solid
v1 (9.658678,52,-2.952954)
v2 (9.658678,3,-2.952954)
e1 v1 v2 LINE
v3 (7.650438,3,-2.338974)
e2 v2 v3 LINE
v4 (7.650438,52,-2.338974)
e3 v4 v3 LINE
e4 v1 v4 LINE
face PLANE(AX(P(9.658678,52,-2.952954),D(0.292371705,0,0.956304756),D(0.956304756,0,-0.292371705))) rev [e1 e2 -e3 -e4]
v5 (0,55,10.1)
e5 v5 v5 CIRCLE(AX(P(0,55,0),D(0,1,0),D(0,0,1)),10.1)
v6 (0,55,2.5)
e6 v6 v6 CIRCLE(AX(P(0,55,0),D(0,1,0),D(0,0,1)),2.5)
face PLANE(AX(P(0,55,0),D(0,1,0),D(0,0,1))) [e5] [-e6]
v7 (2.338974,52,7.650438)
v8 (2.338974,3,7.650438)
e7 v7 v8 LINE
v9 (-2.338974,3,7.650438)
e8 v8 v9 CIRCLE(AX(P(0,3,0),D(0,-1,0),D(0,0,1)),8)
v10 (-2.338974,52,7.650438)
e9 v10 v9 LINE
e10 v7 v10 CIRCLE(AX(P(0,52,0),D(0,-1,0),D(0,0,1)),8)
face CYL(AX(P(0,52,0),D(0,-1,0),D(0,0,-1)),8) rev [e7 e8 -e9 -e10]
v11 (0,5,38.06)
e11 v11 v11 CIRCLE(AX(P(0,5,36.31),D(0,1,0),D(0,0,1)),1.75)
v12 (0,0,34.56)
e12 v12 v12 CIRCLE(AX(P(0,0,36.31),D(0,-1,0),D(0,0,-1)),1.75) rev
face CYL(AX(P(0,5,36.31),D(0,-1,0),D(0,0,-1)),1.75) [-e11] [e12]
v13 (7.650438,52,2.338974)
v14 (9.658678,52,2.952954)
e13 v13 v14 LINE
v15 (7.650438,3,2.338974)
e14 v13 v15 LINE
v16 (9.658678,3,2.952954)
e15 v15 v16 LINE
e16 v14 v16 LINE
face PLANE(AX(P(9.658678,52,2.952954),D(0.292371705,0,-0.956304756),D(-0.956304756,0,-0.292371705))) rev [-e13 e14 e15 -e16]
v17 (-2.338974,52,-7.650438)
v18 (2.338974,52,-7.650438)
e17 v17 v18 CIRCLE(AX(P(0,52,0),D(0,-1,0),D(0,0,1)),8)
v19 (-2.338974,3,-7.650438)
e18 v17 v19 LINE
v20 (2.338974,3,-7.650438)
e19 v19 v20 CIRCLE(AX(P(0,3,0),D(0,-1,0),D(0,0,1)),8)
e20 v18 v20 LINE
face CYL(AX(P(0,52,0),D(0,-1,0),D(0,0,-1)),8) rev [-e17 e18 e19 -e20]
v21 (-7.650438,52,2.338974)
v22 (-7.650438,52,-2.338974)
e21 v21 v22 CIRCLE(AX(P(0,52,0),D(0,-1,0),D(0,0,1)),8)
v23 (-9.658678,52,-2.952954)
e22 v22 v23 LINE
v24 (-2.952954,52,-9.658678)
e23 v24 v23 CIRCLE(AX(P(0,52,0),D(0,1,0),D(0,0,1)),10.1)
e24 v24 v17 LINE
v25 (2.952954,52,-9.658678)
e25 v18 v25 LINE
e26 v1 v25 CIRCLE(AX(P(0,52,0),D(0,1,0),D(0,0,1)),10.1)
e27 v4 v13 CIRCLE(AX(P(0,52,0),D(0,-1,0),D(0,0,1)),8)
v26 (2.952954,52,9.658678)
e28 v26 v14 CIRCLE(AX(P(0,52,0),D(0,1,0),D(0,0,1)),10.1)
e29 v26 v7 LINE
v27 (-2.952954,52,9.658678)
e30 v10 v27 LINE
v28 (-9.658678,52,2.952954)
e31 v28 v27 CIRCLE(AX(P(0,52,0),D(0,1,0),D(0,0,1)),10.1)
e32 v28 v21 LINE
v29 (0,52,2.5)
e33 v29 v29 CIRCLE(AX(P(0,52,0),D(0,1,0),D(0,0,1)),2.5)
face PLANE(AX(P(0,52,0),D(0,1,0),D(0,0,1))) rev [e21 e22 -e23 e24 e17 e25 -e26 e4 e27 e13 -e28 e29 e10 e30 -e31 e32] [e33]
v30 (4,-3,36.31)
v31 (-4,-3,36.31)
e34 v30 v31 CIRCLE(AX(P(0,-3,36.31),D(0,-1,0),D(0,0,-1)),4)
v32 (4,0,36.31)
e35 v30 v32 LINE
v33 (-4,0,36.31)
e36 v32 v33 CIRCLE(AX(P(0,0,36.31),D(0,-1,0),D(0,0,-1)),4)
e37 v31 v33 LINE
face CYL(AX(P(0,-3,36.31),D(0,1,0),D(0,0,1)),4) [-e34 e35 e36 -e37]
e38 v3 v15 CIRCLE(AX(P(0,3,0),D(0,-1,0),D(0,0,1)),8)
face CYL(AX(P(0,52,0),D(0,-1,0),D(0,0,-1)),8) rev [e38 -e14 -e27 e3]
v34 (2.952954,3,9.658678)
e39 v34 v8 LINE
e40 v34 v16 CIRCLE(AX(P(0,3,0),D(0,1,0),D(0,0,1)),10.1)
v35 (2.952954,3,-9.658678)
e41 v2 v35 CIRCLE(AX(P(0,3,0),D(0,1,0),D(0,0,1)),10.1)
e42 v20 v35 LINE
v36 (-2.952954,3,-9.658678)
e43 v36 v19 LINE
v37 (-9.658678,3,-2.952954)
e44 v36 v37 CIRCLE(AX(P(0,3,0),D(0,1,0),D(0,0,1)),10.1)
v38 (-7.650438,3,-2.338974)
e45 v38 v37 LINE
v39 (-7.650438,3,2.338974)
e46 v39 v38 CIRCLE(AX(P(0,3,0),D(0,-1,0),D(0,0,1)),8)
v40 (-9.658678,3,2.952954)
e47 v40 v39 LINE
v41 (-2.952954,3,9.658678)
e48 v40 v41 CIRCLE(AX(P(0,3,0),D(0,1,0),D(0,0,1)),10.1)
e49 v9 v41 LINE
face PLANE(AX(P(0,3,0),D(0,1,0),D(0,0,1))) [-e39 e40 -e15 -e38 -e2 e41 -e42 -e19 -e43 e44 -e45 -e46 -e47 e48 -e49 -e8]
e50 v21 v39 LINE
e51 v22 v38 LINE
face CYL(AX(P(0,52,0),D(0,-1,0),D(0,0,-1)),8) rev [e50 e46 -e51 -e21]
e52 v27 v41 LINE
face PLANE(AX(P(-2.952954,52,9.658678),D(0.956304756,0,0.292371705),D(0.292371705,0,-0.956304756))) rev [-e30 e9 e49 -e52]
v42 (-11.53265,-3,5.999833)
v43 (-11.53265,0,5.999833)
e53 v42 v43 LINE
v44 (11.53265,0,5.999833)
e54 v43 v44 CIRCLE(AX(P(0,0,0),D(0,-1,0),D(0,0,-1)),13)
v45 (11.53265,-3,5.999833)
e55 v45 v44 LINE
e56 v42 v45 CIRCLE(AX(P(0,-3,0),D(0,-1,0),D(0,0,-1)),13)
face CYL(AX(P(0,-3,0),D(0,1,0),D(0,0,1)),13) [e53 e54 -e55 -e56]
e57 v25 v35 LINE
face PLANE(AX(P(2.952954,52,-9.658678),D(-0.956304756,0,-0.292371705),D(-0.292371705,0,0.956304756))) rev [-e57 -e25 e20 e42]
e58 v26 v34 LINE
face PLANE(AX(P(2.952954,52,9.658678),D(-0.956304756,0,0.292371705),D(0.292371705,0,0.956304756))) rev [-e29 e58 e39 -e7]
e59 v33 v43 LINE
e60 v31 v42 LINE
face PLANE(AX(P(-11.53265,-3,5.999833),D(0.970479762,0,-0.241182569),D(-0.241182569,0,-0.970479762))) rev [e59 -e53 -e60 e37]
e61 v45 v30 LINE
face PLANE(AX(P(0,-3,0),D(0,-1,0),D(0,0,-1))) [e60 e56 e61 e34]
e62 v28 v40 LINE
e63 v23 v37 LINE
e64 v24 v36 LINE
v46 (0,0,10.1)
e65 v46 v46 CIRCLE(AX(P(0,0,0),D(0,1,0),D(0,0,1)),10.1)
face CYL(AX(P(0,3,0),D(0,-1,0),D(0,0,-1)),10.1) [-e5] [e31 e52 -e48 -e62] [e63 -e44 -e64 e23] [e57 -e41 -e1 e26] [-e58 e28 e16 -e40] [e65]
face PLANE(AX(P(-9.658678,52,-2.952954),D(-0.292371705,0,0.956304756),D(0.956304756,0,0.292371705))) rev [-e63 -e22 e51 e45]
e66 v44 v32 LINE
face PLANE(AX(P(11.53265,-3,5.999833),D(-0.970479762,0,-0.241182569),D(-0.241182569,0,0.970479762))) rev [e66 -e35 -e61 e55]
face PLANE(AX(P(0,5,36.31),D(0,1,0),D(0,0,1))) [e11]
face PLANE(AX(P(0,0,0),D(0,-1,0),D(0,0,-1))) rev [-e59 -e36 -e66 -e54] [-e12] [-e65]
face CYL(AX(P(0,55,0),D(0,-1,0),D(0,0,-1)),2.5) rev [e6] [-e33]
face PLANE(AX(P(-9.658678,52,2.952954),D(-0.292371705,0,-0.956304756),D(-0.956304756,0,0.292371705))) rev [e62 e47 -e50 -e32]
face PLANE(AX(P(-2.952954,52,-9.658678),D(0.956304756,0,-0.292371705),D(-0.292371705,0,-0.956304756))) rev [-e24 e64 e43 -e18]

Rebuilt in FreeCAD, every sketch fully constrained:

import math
import FreeCAD as App
import Part
import Sketcher

V = App.Vector
Q = App.Units.Quantity

doc = App.newDocument("Part")
body = doc.addObject("PartDesign::Body", "Body")

# Sketch on XZ plane
sketch1 = body.newObject("Sketcher::SketchObject", "Sketch")
sketch1.AttachmentSupport = (doc.getObject("XZ_Plane"), [""])
sketch1.MapMode = "FlatFace"
sketch1.addGeometry(Part.Circle(V(0, 0, 0), V(0, 0, 1), 10.1), False)
sketch1.addConstraint([
    Sketcher.Constraint("Coincident", 0, 3, -1, 1),
    Sketcher.Constraint("Diameter", 0, Q("20.2 mm")),
])
pad1 = body.newObject("PartDesign::Pad", "Pad")
pad1.Profile = sketch1
pad1.Length = 3
pad1.Reversed = True

# Sketch on XZ plane
sketch2 = body.newObject("Sketcher::SketchObject", "Sketch001")
sketch2.AttachmentSupport = (doc.getObject("XZ_Plane"), [""])
sketch2.MapMode = "FlatFace"
sketch2.AttachmentOffset = App.Placement(V(0, 0, -3), App.Rotation())
sketch2.addGeometry([
    Part.LineSegment(V(-2.952954, -9.658678, 0), V(-2.338974, -7.650438, 0)),  # 0
    Part.ArcOfCircle(Part.Circle(V(0, 0, 0), V(0, 0, 1), 8), math.radians(-107), math.radians(-73)),  # 1
    Part.LineSegment(V(2.338974, -7.650438, 0), V(2.952954, -9.658678, 0)),  # 2
    Part.ArcOfCircle(Part.Circle(V(0, 0, 0), V(0, 0, 1), 10.1), math.radians(-107), math.radians(-73)),  # 3
    Part.LineSegment(V(9.658678, -2.952954, 0), V(7.650438, -2.338974, 0)),  # 4
    Part.ArcOfCircle(Part.Circle(V(0, 0, 0), V(0, 0, 1), 8), math.radians(-17), math.radians(17)),  # 5
    Part.LineSegment(V(7.650438, 2.338974, 0), V(9.658678, 2.952954, 0)),  # 6
    Part.ArcOfCircle(Part.Circle(V(0, 0, 0), V(0, 0, 1), 10.1), math.radians(-17), math.radians(17)),  # 7
    Part.LineSegment(V(2.952954, 9.658678, 0), V(2.338974, 7.650438, 0)),  # 8
    Part.ArcOfCircle(Part.Circle(V(0, 0, 0), V(0, 0, 1), 8), math.radians(73), math.radians(107)),  # 9
    Part.LineSegment(V(-2.338974, 7.650438, 0), V(-2.952954, 9.658678, 0)),  # 10
    Part.ArcOfCircle(Part.Circle(V(0, 0, 0), V(0, 0, 1), 10.1), math.radians(73), math.radians(107)),  # 11
    Part.LineSegment(V(-9.658678, 2.952954, 0), V(-7.650438, 2.338974, 0)),  # 12
    Part.ArcOfCircle(Part.Circle(V(0, 0, 0), V(0, 0, 1), 8), math.radians(163), math.radians(197)),  # 13
    Part.LineSegment(V(-7.650438, -2.338974, 0), V(-9.658678, -2.952954, 0)),  # 14
    Part.ArcOfCircle(Part.Circle(V(0, 0, 0), V(0, 0, 1), 10.1), math.radians(163), math.radians(197)),  # 15
], False)
sketch2.addConstraint([
    Sketcher.Constraint("Coincident", 0, 2, 1, 1),
    Sketcher.Constraint("Coincident", 1, 2, 2, 1),
    Sketcher.Constraint("Coincident", 2, 2, 3, 2),
    Sketcher.Constraint("Coincident", 3, 1, 0, 1),
    Sketcher.Constraint("Coincident", 4, 2, 5, 1),
    Sketcher.Constraint("Coincident", 5, 2, 6, 1),
    Sketcher.Constraint("Coincident", 6, 2, 7, 2),
    Sketcher.Constraint("Coincident", 7, 1, 4, 1),
    Sketcher.Constraint("Coincident", 8, 2, 9, 1),
    Sketcher.Constraint("Coincident", 9, 2, 10, 1),
    Sketcher.Constraint("Coincident", 10, 2, 11, 2),
    Sketcher.Constraint("Coincident", 11, 1, 8, 1),
    Sketcher.Constraint("Coincident", 12, 2, 13, 1),
    Sketcher.Constraint("Coincident", 13, 2, 14, 1),
    Sketcher.Constraint("Coincident", 14, 2, 15, 2),
    Sketcher.Constraint("Coincident", 15, 1, 12, 1),
    Sketcher.Constraint("Coincident", 1, 3, -1, 1),
    Sketcher.Constraint("Coincident", 3, 3, -1, 1),
    Sketcher.Constraint("Coincident", 5, 3, -1, 1),
    Sketcher.Constraint("Coincident", 7, 3, -1, 1),
    Sketcher.Constraint("Coincident", 9, 3, -1, 1),
    Sketcher.Constraint("Coincident", 11, 3, -1, 1),
    Sketcher.Constraint("Coincident", 13, 3, -1, 1),
    Sketcher.Constraint("Coincident", 15, 3, -1, 1),
    Sketcher.Constraint("Equal", 1, 5),
    Sketcher.Constraint("Equal", 3, 7),
    Sketcher.Constraint("Equal", 5, 9),
    Sketcher.Constraint("Equal", 7, 11),
    Sketcher.Constraint("Equal", 9, 13),
    Sketcher.Constraint("Equal", 11, 15),
    Sketcher.Constraint("Perpendicular", 0, 4),
    Sketcher.Constraint("Perpendicular", 2, 6),
    Sketcher.Constraint("Perpendicular", 4, 8),
    Sketcher.Constraint("Perpendicular", 6, 10),
    Sketcher.Constraint("Perpendicular", 8, 12),
    Sketcher.Constraint("Perpendicular", 10, 14),
    Sketcher.Constraint("Horizontal", 0, 2, 1, 2),
    Sketcher.Constraint("Horizontal", 2, 2, 3, 1),
    Sketcher.Constraint("Horizontal", 8, 2, 9, 2),
    Sketcher.Constraint("Horizontal", 5, 2, 12, 2),
    Sketcher.Constraint("Horizontal", 4, 2, 13, 2),
    Sketcher.Constraint("Vertical", 4, 2, 5, 2),
    Sketcher.Constraint("Vertical", 1, 2, 8, 2),
    Sketcher.Constraint("Radius", 1, Q("8 mm")),
    Sketcher.Constraint("Radius", 3, Q("10.1 mm")),
    Sketcher.Constraint("Angle", 0, Q("73 deg")),
    Sketcher.Constraint("DistanceY", 0, 2, -1, 1, Q("7.650438 mm")),
    Sketcher.Constraint("DistanceX", -1, 1, 4, 2, Q("7.650438 mm")),
])
pad2 = body.newObject("PartDesign::Pad", "Pad001")
pad2.Profile = sketch2
pad2.Length = 49
pad2.Reversed = True

# Sketch on XZ plane
sketch3 = body.newObject("Sketcher::SketchObject", "Sketch002")
sketch3.AttachmentSupport = (doc.getObject("XZ_Plane"), [""])
sketch3.MapMode = "FlatFace"
sketch3.AttachmentOffset = App.Placement(V(0, 0, -52), App.Rotation())
sketch3.addGeometry([
    Part.Circle(V(0, 0, 0), V(0, 0, 1), 10.1),
    Part.Circle(V(0, 0, 0), V(0, 0, 1), 2.5),
], False)
sketch3.addConstraint([
    Sketcher.Constraint("Coincident", 0, 3, -1, 1),
    Sketcher.Constraint("Coincident", 1, 3, -1, 1),
    Sketcher.Constraint("Diameter", 1, Q("5 mm")),
    Sketcher.Constraint("Diameter", 0, Q("20.2 mm")),
])
pad3 = body.newObject("PartDesign::Pad", "Pad002")
pad3.Profile = sketch3
pad3.Length = 3
pad3.Reversed = True

# Sketch on XZ plane
sketch4 = body.newObject("Sketcher::SketchObject", "Sketch003")
sketch4.AttachmentSupport = (doc.getObject("XZ_Plane"), [""])
sketch4.MapMode = "FlatFace"
sketch4.addGeometry([
    Part.LineSegment(V(-4, 36.31, 0), V(-11.53265, 5.999833, 0)),
    Part.ArcOfCircle(Part.Circle(V(0, 0, 0), V(0, 0, 1), 13), math.radians(152.514405), math.radians(387.485595)),
    Part.LineSegment(V(11.53265, 5.999833, 0), V(4, 36.31, 0)),
    Part.ArcOfCircle(Part.Circle(V(0, 36.31, 0), V(0, 0, 1), 4), math.radians(0), math.radians(180)),
], False)
sketch4.addConstraint([
    Sketcher.Constraint("Coincident", 0, 2, 1, 1),
    Sketcher.Constraint("Coincident", 1, 2, 2, 1),
    Sketcher.Constraint("Coincident", 2, 2, 3, 1),
    Sketcher.Constraint("Coincident", 3, 2, 0, 1),
    Sketcher.Constraint("Coincident", 1, 3, -1, 1),
    Sketcher.Constraint("Symmetric", 2, 2, 3, 2, -2),
    Sketcher.Constraint("Horizontal", 0, 2, 1, 2),
    Sketcher.Constraint("Horizontal", 3, 3, 2, 2),
    Sketcher.Constraint("Radius", 1, Q("13 mm")),
    Sketcher.Constraint("Radius", 3, Q("4 mm")),
    Sketcher.Constraint("DistanceY", -1, 1, 3, 3, Q("36.31 mm")),
    Sketcher.Constraint("DistanceX", 0, 2, 1, 2, Q("23.065299 mm")),
])
pad4 = body.newObject("PartDesign::Pad", "Pad003")
pad4.Profile = sketch4
pad4.Length = 3

# Sketch on XZ plane
sketch5 = body.newObject("Sketcher::SketchObject", "Sketch004")
sketch5.AttachmentSupport = (doc.getObject("XZ_Plane"), [""])
sketch5.MapMode = "FlatFace"
sketch5.addGeometry(Part.Circle(V(0, 36.31, 0), V(0, 0, 1), 1.75), False)
sketch5.addConstraint([
    Sketcher.Constraint("PointOnObject", 0, 3, -2),
    Sketcher.Constraint("Diameter", 0, Q("3.5 mm")),
    Sketcher.Constraint("DistanceY", -1, 1, 0, 3, Q("36.31 mm")),
])
pad5 = body.newObject("PartDesign::Pad", "Pad004")
pad5.Profile = sketch5
pad5.Length = 5
pad5.Reversed = True

doc.recompute()
